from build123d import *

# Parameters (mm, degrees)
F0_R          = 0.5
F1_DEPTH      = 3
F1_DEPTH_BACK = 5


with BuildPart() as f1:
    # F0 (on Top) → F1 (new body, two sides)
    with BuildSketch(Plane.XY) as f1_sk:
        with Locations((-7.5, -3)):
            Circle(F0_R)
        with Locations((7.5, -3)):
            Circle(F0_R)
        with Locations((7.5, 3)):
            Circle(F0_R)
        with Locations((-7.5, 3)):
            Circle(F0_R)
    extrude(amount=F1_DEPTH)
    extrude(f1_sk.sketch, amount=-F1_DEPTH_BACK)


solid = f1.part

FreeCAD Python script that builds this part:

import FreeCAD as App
import Part
import Sketcher
from FreeCAD import Vector

doc = App.newDocument("Part")
body = doc.addObject("PartDesign::Body", "Body")
body.AllowCompound = True

sketch1 = body.newObject("Sketcher::SketchObject", "Sketch")
sketch1.AttachmentSupport = (doc.getObject("XY_Plane"), [""])
sketch1.MapMode = "FlatFace"
sketch1.addGeometry(Part.Circle(Vector(-7.5, -3, 0), Vector(0, 0, 1), 0.5), False)
sketch1.addGeometry(Part.Circle(Vector(7.5, -3, 0), Vector(0, 0, 1), 0.5), False)
sketch1.addGeometry(Part.Circle(Vector(7.5, 3, 0), Vector(0, 0, 1), 0.5), False)
sketch1.addGeometry(Part.Circle(Vector(-7.5, 3, 0), Vector(0, 0, 1), 0.5), False)
sketch1.addConstraint(Sketcher.Constraint("Equal", 0, 1))
sketch1.addConstraint(Sketcher.Constraint("Equal", 1, 2))
sketch1.addConstraint(Sketcher.Constraint("Equal", 2, 3))
sketch1.addConstraint(Sketcher.Constraint("Symmetric", 0, 3, 2, 3, -1, 1))
sketch1.addConstraint(Sketcher.Constraint("Symmetric", 1, 3, 3, 3, -1, 1))
sketch1.addConstraint(Sketcher.Constraint("Symmetric", 0, 3, 1, 3, -2))
sketch1.addConstraint(Sketcher.Constraint("Diameter", 0, 1.0))
sketch1.addConstraint(Sketcher.Constraint("DistanceY", 0, 3, -1, 1, 3.0))
sketch1.addConstraint(Sketcher.Constraint("DistanceX", 0, 3, 1, 3, 15.0))
pad1 = body.newObject("PartDesign::Pad", "Pad")
pad1.Profile = sketch1
pad1.Type = "TwoLengths"
pad1.Length = 3
pad1.Length2 = 5

doc.recompute()
